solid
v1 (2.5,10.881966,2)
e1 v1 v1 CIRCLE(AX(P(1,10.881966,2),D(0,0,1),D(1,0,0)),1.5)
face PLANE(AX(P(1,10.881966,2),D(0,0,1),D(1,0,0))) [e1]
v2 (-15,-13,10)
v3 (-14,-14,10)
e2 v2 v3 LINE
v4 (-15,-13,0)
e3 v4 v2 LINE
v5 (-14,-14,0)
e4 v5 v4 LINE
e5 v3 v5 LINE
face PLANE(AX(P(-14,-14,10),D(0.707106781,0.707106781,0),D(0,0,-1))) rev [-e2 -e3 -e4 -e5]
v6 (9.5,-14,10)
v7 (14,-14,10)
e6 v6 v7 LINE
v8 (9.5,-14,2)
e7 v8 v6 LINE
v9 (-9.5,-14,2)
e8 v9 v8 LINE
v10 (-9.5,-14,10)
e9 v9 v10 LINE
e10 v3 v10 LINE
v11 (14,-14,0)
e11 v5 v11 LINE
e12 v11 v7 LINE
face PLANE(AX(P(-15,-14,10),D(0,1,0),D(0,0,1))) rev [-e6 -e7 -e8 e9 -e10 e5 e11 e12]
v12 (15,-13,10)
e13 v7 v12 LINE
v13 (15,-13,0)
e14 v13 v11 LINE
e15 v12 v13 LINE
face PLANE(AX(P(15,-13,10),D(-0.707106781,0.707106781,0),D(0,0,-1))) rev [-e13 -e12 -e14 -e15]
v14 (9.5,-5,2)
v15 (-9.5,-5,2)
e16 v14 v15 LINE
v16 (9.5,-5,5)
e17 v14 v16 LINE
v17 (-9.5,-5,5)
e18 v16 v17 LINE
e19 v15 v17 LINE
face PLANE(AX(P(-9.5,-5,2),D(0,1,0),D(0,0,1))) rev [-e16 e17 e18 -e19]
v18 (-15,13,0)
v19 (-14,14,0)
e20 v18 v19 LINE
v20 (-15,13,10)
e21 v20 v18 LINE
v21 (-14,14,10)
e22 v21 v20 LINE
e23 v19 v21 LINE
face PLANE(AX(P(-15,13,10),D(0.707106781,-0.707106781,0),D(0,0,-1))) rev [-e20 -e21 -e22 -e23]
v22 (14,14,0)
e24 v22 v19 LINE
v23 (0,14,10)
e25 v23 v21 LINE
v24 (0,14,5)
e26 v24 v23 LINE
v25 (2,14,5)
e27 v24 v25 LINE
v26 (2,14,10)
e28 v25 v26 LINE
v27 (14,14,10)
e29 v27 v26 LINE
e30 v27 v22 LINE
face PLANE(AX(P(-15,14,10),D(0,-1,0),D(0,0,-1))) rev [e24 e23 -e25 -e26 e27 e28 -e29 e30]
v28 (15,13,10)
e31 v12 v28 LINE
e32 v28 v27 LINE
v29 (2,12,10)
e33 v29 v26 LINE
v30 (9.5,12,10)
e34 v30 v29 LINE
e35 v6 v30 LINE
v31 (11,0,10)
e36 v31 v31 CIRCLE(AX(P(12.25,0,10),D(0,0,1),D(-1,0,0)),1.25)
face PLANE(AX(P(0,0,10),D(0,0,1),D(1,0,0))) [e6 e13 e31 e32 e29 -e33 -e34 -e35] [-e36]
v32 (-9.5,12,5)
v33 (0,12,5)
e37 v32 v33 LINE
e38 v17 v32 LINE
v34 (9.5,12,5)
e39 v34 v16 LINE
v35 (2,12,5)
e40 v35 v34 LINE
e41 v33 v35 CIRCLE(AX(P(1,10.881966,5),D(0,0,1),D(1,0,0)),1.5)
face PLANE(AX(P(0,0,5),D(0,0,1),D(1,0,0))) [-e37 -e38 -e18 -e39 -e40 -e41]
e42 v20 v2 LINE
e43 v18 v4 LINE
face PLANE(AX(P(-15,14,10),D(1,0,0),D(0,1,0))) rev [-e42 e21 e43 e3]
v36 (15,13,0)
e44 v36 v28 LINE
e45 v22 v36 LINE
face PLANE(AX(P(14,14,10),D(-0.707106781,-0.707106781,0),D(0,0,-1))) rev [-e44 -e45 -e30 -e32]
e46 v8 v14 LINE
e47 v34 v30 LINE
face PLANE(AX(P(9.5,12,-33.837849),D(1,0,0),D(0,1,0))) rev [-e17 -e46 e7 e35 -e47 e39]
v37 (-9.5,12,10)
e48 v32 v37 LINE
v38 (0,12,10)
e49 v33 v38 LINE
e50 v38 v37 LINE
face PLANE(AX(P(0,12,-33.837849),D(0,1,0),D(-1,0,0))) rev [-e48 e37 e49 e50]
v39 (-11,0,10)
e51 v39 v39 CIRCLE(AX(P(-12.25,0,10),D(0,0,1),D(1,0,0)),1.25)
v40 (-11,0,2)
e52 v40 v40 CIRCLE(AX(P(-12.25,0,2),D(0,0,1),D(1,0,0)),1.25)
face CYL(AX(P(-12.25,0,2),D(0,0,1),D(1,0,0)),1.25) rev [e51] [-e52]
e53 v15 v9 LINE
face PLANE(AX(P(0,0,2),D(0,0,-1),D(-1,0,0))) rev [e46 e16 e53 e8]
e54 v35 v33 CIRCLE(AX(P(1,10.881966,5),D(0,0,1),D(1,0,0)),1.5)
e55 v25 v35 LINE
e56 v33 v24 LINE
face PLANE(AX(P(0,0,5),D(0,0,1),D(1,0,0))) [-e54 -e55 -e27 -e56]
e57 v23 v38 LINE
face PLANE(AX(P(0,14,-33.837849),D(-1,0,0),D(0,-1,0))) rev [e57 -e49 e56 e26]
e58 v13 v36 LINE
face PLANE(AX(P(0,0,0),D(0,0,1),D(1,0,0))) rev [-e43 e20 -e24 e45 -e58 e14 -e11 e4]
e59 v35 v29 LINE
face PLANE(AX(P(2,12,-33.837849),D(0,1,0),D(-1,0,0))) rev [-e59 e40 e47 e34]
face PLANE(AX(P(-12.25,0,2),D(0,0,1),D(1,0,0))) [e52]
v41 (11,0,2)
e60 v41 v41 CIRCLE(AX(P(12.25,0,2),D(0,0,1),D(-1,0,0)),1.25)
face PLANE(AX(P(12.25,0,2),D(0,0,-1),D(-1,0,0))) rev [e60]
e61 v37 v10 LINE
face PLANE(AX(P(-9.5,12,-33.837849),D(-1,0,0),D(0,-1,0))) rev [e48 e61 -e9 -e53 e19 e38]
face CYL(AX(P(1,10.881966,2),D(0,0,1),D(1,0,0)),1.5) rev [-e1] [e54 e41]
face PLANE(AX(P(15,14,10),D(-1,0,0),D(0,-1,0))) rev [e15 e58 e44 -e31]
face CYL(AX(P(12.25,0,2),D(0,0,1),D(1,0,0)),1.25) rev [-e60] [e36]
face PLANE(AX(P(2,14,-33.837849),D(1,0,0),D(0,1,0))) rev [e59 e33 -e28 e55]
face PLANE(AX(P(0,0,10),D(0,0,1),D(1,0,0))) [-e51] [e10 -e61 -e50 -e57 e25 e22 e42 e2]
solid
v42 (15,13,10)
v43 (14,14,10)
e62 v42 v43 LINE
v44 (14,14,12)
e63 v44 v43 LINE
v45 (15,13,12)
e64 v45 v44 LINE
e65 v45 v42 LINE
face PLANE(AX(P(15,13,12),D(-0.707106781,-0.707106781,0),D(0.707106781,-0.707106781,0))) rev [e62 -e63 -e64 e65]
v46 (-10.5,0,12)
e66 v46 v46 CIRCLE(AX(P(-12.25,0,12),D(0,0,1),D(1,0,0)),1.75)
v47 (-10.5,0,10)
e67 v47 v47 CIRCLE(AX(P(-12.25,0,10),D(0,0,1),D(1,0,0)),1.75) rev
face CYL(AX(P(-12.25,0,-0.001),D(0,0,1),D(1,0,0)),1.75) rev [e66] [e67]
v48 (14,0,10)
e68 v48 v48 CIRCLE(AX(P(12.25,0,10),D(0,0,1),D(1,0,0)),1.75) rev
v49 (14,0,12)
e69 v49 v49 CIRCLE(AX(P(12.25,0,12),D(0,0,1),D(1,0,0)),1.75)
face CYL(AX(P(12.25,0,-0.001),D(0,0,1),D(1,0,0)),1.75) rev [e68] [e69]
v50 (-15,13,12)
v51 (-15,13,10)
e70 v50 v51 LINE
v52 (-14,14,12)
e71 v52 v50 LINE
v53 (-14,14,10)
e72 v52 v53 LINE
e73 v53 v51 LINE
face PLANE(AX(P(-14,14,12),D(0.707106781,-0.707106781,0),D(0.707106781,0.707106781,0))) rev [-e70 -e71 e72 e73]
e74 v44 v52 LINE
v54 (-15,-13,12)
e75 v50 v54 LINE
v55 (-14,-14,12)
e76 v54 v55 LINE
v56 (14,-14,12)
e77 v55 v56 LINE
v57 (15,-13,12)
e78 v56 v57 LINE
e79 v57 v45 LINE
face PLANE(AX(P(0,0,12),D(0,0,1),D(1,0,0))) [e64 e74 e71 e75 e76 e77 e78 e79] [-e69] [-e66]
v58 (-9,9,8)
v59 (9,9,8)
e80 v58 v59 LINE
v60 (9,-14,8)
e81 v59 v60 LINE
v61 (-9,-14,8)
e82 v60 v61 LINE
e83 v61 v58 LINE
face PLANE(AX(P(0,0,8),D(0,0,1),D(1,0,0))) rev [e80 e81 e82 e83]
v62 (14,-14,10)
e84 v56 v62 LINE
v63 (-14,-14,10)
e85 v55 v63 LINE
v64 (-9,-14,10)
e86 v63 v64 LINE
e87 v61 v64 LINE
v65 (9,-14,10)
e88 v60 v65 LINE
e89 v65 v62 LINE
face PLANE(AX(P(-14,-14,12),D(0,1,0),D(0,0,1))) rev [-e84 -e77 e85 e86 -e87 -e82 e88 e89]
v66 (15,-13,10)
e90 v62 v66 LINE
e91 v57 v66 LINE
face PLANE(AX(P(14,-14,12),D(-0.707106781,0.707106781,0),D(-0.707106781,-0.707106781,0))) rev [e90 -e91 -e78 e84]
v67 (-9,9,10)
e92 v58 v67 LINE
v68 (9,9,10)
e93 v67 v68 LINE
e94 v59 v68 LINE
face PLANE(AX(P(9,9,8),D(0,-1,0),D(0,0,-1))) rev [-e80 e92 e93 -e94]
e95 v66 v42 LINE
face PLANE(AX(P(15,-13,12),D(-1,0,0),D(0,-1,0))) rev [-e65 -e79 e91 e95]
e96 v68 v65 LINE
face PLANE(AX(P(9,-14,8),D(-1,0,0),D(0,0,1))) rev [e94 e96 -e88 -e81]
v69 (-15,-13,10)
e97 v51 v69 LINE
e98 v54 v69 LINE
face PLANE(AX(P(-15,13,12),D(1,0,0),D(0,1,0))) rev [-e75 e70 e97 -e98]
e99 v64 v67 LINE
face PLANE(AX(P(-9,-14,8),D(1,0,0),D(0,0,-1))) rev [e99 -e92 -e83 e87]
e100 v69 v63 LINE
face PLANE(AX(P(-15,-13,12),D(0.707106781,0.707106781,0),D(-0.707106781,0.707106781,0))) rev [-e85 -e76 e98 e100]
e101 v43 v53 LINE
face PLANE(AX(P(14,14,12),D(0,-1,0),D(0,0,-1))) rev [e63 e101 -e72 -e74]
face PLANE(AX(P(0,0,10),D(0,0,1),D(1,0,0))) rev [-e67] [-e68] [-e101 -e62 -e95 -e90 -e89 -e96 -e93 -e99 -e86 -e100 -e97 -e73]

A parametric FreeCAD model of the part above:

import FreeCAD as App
import Part
import Sketcher


def edges_at(feature, points):
    """Names of the edges that pass closest to the given points."""
    edges = feature.Shape.Edges
    near = lambda p: min(range(len(edges)), key=lambda i: edges[i].distToShape(Part.Vertex(*p))[0])
    return sorted({f"Edge{near(p) + 1}" for p in points})

doc = App.newDocument("Part")
params = doc.addObject("Spreadsheet::Sheet", "Params")
for row, (alias, value) in enumerate([
    ("sketch1_width", "30 mm"),
    ("sketch1_height", "28 mm"),
    ("pad1_length", "10 mm"),
    ("sketch2_width", "19 mm"),
    ("sketch2_width2", "2 mm"),
    ("sketch2_height", "26 mm"),
    ("pocket1_length", "5 mm"),
    ("sketch3_diameter", "3 mm"),
    ("sketch3_width", "19 mm"),
    ("sketch3_height", "9 mm"),
    ("pocket2_length", "3 mm"),
    ("chamfer_size", "1 mm"),
    ("sketch4_diameter", "2.5 mm"),
    ("pocket3_length", "8 mm"),
    ("sketch5_width", "28 mm"),
    ("sketch5_height", "26 mm"),
    ("pad2_length", "2 mm"),
    ("sketch6_diameter", "3.5 mm"),
    ("pocket4_length", "2 mm"),
    ("sketch7_width", "18 mm"),
    ("sketch7_height", "23 mm"),
    ("pad3_length", "2 mm"),
], start=1):
    params.set(f"A{row}", alias)
    params.set(f"B{row}", "=" + value)
    params.setAlias(f"B{row}", alias)

body = doc.addObject("PartDesign::Body", "Body")

# Sketch on XY plane
sketch1 = body.newObject("Sketcher::SketchObject", "Sketch")
sketch1.AttachmentSupport = (doc.getObject("XY_Plane"), [""])
sketch1.MapMode = "FlatFace"
sketch1.addGeometry([
    Part.LineSegment(App.Vector(-15, 14, 0), App.Vector(-15, -14, 0)),
    Part.LineSegment(App.Vector(-15, -14, 0), App.Vector(15, -14, 0)),
    Part.LineSegment(App.Vector(15, -14, 0), App.Vector(15, 14, 0)),
    Part.LineSegment(App.Vector(15, 14, 0), App.Vector(-15, 14, 0)),
], False)
sketch1.addConstraint([
    Sketcher.Constraint("Coincident", 0, 2, 1, 1),
    Sketcher.Constraint("Coincident", 1, 2, 2, 1),
    Sketcher.Constraint("Coincident", 2, 2, 3, 1),
    Sketcher.Constraint("Coincident", 3, 2, 0, 1),
    Sketcher.Constraint("Vertical", 0),
    Sketcher.Constraint("Horizontal", 1),
    Sketcher.Constraint("Vertical", 2),
    Sketcher.Constraint("Horizontal", 3),
    Sketcher.Constraint("Symmetric", 0, 2, 2, 2, -1, 1),
    Sketcher.Constraint("DistanceX", 1, 1, 1, 2, 30.0),
    Sketcher.Constraint("DistanceY", 0, 2, 0, 1, 28.0),
])
sketch1.setExpression("Constraints[9]", "Params.sketch1_width")
sketch1.setExpression("Constraints[10]", "Params.sketch1_height")
pad1 = body.newObject("PartDesign::Pad", "Pad")
pad1.Profile = sketch1
pad1.setExpression("Length", "Params.pad1_length")

# Sketch on XY plane
sketch2 = body.newObject("Sketcher::SketchObject", "Sketch001")
sketch2.AttachmentSupport = (doc.getObject("XY_Plane"), [""])
sketch2.MapMode = "FlatFace"
sketch2.AttachmentOffset = App.Placement(App.Vector(0, 0, 10), App.Rotation())
sketch2.addGeometry([
    Part.LineSegment(App.Vector(0, 14, 0), App.Vector(0, 12, 0)),  # 0
    Part.LineSegment(App.Vector(0, 12, 0), App.Vector(-9.5, 12, 0)),  # 1
    Part.LineSegment(App.Vector(-9.5, 12, 0), App.Vector(-9.5, -14, 0)),  # 2
    Part.LineSegment(App.Vector(-9.5, -14, 0), App.Vector(9.5, -14, 0)),  # 3
    Part.LineSegment(App.Vector(9.5, -14, 0), App.Vector(9.5, 12, 0)),  # 4
    Part.LineSegment(App.Vector(9.5, 12, 0), App.Vector(2, 12, 0)),  # 5
    Part.LineSegment(App.Vector(2, 12, 0), App.Vector(2, 14, 0)),  # 6
    Part.LineSegment(App.Vector(2, 14, 0), App.Vector(0, 14, 0)),  # 7
], False)
sketch2.addConstraint([
    Sketcher.Constraint("Coincident", 0, 2, 1, 1),
    Sketcher.Constraint("Coincident", 1, 2, 2, 1),
    Sketcher.Constraint("Coincident", 2, 2, 3, 1),
    Sketcher.Constraint("Coincident", 3, 2, 4, 1),
    Sketcher.Constraint("Coincident", 4, 2, 5, 1),
    Sketcher.Constraint("Coincident", 5, 2, 6, 1),
    Sketcher.Constraint("Coincident", 6, 2, 7, 1),
    Sketcher.Constraint("Coincident", 7, 2, 0, 1),
    Sketcher.Constraint("Vertical", 0),
    Sketcher.Constraint("Horizontal", 1),
    Sketcher.Constraint("Vertical", 2),
    Sketcher.Constraint("Horizontal", 3),
    Sketcher.Constraint("Vertical", 4),
    Sketcher.Constraint("Horizontal", 5),
    Sketcher.Constraint("Vertical", 6),
    Sketcher.Constraint("Horizontal", 7),
    Sketcher.Constraint("Symmetric", 1, 2, 4, 2, -2),
    Sketcher.Constraint("PointOnObject", 0, 2, -2),
    Sketcher.Constraint("Equal", 7, 0),
    Sketcher.Constraint("DistanceX", 3, 1, 3, 2, 19.0),
    Sketcher.Constraint("DistanceX", 7, 2, 7, 1, 2.0),
    Sketcher.Constraint("DistanceY", 2, 2, 2, 1, 26.0),
    Sketcher.Constraint("DistanceY", -1, 1, 0, 2, 12.0),
])
sketch2.setExpression("Constraints[19]", "Params.sketch2_width")
sketch2.setExpression("Constraints[20]", "Params.sketch2_width2")
sketch2.setExpression("Constraints[21]", "Params.sketch2_height")
pocket1 = body.newObject("PartDesign::Pocket", "Pocket")
pocket1.Profile = sketch2
pocket1.setExpression("Length", "Params.pocket1_length")

# Sketch on XY plane
sketch3 = body.newObject("Sketcher::SketchObject", "Sketch002")
sketch3.AttachmentSupport = (doc.getObject("XY_Plane"), [""])
sketch3.MapMode = "FlatFace"
sketch3.AttachmentOffset = App.Placement(App.Vector(0, 0, 5), App.Rotation())
sketch3.addGeometry([
    Part.Circle(App.Vector(1, 10.9, 0), App.Vector(0, 0, 1), 1.5),  # 0
    Part.LineSegment(App.Vector(-9.5, -5, 0), App.Vector(-9.5, -14, 0)),  # 1
    Part.LineSegment(App.Vector(-9.5, -14, 0), App.Vector(9.5, -14, 0)),  # 2
    Part.LineSegment(App.Vector(9.5, -14, 0), App.Vector(9.5, -5, 0)),  # 3
    Part.LineSegment(App.Vector(9.5, -5, 0), App.Vector(-9.5, -5, 0)),  # 4
], False)
sketch3.addConstraint([
    Sketcher.Constraint("Coincident", 1, 2, 2, 1),
    Sketcher.Constraint("Coincident", 2, 2, 3, 1),
    Sketcher.Constraint("Coincident", 3, 2, 4, 1),
    Sketcher.Constraint("Coincident", 4, 2, 1, 1),
    Sketcher.Constraint("Vertical", 1),
    Sketcher.Constraint("Horizontal", 2),
    Sketcher.Constraint("Vertical", 3),
    Sketcher.Constraint("Horizontal", 4),
    Sketcher.Constraint("Diameter", 0, 3.0),
    Sketcher.Constraint("DistanceX", 2, 1, 2, 2, 19.0),
    Sketcher.Constraint("DistanceY", 1, 2, 1, 1, 9.0),
    Sketcher.Constraint("DistanceX", -1, 1, 0, 3, 1.0),
    Sketcher.Constraint("DistanceY", 1, 2, -1, 1, 14.0),
    Sketcher.Constraint("DistanceX", 1, 2, -1, 1, 9.5),
    Sketcher.Constraint("DistanceY", -1, 1, 0, 3, 10.881966),
])
sketch3.setExpression("Constraints[8]", "Params.sketch3_diameter")
sketch3.setExpression("Constraints[9]", "Params.sketch3_width")
sketch3.setExpression("Constraints[10]", "Params.sketch3_height")
pocket2 = body.newObject("PartDesign::Pocket", "Pocket001")
pocket2.Profile = sketch3
pocket2.setExpression("Length", "Params.pocket2_length")
doc.recompute()

chamfer = body.newObject("PartDesign::Chamfer", "Chamfer")
chamfer.Base = (pocket2, edges_at(pocket2, [
    (15, -14, 5),
    (-15, -14, 5),
    (-15, 14, 5),
    (15, 14, 5),
]))
chamfer.setExpression("Size", "Params.chamfer_size")

# Sketch on XY plane
sketch4 = body.newObject("Sketcher::SketchObject", "Sketch003")
sketch4.AttachmentSupport = (doc.getObject("XY_Plane"), [""])
sketch4.MapMode = "FlatFace"
sketch4.AttachmentOffset = App.Placement(App.Vector(0, 0, 10), App.Rotation())
sketch4.addGeometry([
    Part.Circle(App.Vector(-12.2, 0, 0), App.Vector(0, 0, 1), 1.2),
    Part.Circle(App.Vector(12.2, 0, 0), App.Vector(0, 0, 1), 1.2),
], False)
sketch4.addConstraint([
    Sketcher.Constraint("Equal", 0, 1),
    Sketcher.Constraint("Symmetric", 0, 3, 1, 3, -1, 1),
    Sketcher.Constraint("PointOnObject", 0, 3, -1),
    Sketcher.Constraint("Diameter", 0, 2.5),
    Sketcher.Constraint("DistanceX", 0, 3, 1, 3, 24.5),
])
sketch4.setExpression("Constraints[3]", "Params.sketch4_diameter")
pocket3 = body.newObject("PartDesign::Pocket", "Pocket002")
pocket3.Profile = sketch4
pocket3.setExpression("Length", "Params.pocket3_length")
body2 = doc.addObject("PartDesign::Body", "Body001")

# Sketch on XY plane
sketch5 = body2.newObject("Sketcher::SketchObject", "Sketch004")
sketch5.AttachmentSupport = (doc.getObject("XY_Plane001"), [""])
sketch5.MapMode = "FlatFace"
sketch5.AttachmentOffset = App.Placement(App.Vector(0, 0, 10), App.Rotation())
sketch5.addGeometry([
    Part.LineSegment(App.Vector(-14, 14, 0), App.Vector(-15, 13, 0)),  # 0
    Part.LineSegment(App.Vector(-15, 13, 0), App.Vector(-15, -13, 0)),  # 1
    Part.LineSegment(App.Vector(-15, -13, 0), App.Vector(-14, -14, 0)),  # 2
    Part.LineSegment(App.Vector(-14, -14, 0), App.Vector(14, -14, 0)),  # 3
    Part.LineSegment(App.Vector(14, -14, 0), App.Vector(15, -13, 0)),  # 4
    Part.LineSegment(App.Vector(15, -13, 0), App.Vector(15, 13, 0)),  # 5
    Part.LineSegment(App.Vector(15, 13, 0), App.Vector(14, 14, 0)),  # 6
    Part.LineSegment(App.Vector(14, 14, 0), App.Vector(-14, 14, 0)),  # 7
], False)
sketch5.addConstraint([
    Sketcher.Constraint("Coincident", 0, 2, 1, 1),
    Sketcher.Constraint("Coincident", 1, 2, 2, 1),
    Sketcher.Constraint("Coincident", 2, 2, 3, 1),
    Sketcher.Constraint("Coincident", 3, 2, 4, 1),
    Sketcher.Constraint("Coincident", 4, 2, 5, 1),
    Sketcher.Constraint("Coincident", 5, 2, 6, 1),
    Sketcher.Constraint("Coincident", 6, 2, 7, 1),
    Sketcher.Constraint("Coincident", 7, 2, 0, 1),
    Sketcher.Constraint("Vertical", 1),
    Sketcher.Constraint("Horizontal", 3),
    Sketcher.Constraint("Vertical", 5),
    Sketcher.Constraint("Horizontal", 7),
    Sketcher.Constraint("Symmetric", 0, 2, 4, 2, -1, 1),
    Sketcher.Constraint("Symmetric", 2, 2, 6, 2, -1, 1),
    Sketcher.Constraint("Perpendicular", 0, 2),
    Sketcher.Constraint("Perpendicular", 2, 4),
    Sketcher.Constraint("Perpendicular", 4, 6),
    Sketcher.Constraint("Horizontal", 1, 2, 4, 2),
    Sketcher.Constraint("Vertical", 3, 2, 6, 2),
    Sketcher.Constraint("DistanceX", 3, 1, 3, 2, 28.0),
    Sketcher.Constraint("DistanceY", 1, 2, 1, 1, 26.0),
    Sketcher.Constraint("DistanceX", 0, 2, -1, 1, 15.0),
])
sketch5.setExpression("Constraints[19]", "Params.sketch5_width")
sketch5.setExpression("Constraints[20]", "Params.sketch5_height")
pad2 = body2.newObject("PartDesign::Pad", "Pad001")
pad2.Profile = sketch5
pad2.setExpression("Length", "Params.pad2_length")

# Sketch on XY plane
sketch6 = body2.newObject("Sketcher::SketchObject", "Sketch005")
sketch6.AttachmentSupport = (doc.getObject("XY_Plane001"), [""])
sketch6.MapMode = "FlatFace"
sketch6.AttachmentOffset = App.Placement(App.Vector(0, 0, 12), App.Rotation())
sketch6.addGeometry([
    Part.Circle(App.Vector(-12.2, 0, 0), App.Vector(0, 0, 1), 1.8),
    Part.Circle(App.Vector(12.2, 0, 0), App.Vector(0, 0, 1), 1.8),
], False)
sketch6.addConstraint([
    Sketcher.Constraint("Equal", 0, 1),
    Sketcher.Constraint("Symmetric", 0, 3, 1, 3, -1, 1),
    Sketcher.Constraint("PointOnObject", 0, 3, -1),
    Sketcher.Constraint("Diameter", 0, 3.5),
    Sketcher.Constraint("DistanceX", 0, 3, 1, 3, 24.5),
])
sketch6.setExpression("Constraints[3]", "Params.sketch6_diameter")
pocket4 = body2.newObject("PartDesign::Pocket", "Pocket003")
pocket4.Profile = sketch6
pocket4.setExpression("Length", "Params.pocket4_length")

# Sketch on XY plane
sketch7 = body2.newObject("Sketcher::SketchObject", "Sketch006")
sketch7.AttachmentSupport = (doc.getObject("XY_Plane001"), [""])
sketch7.MapMode = "FlatFace"
sketch7.AttachmentOffset = App.Placement(App.Vector(0, 0, 10), App.Rotation())
sketch7.addGeometry([
    Part.LineSegment(App.Vector(9, 9, 0), App.Vector(9, -14, 0)),
    Part.LineSegment(App.Vector(9, -14, 0), App.Vector(-9, -14, 0)),
    Part.LineSegment(App.Vector(-9, -14, 0), App.Vector(-9, 9, 0)),
    Part.LineSegment(App.Vector(-9, 9, 0), App.Vector(9, 9, 0)),
], False)
sketch7.addConstraint([
    Sketcher.Constraint("Coincident", 0, 2, 1, 1),
    Sketcher.Constraint("Coincident", 1, 2, 2, 1),
    Sketcher.Constraint("Coincident", 2, 2, 3, 1),
    Sketcher.Constraint("Coincident", 3, 2, 0, 1),
    Sketcher.Constraint("Vertical", 0),
    Sketcher.Constraint("Horizontal", 1),
    Sketcher.Constraint("Vertical", 2),
    Sketcher.Constraint("Horizontal", 3),
    Sketcher.Constraint("DistanceX", 1, 2, 1, 1, 18.0),
    Sketcher.Constraint("DistanceY", 0, 2, 0, 1, 23.0),
    Sketcher.Constraint("DistanceX", -1, 1, 0, 2, 9.0),
    Sketcher.Constraint("DistanceY", 0, 2, -1, 1, 14.0),
])
sketch7.setExpression("Constraints[8]", "Params.sketch7_width")
sketch7.setExpression("Constraints[9]", "Params.sketch7_height")
pad3 = body2.newObject("PartDesign::Pad", "Pad002")
pad3.Profile = sketch7
pad3.setExpression("Length", "Params.pad3_length")
pad3.Reversed = True

doc.recompute()
